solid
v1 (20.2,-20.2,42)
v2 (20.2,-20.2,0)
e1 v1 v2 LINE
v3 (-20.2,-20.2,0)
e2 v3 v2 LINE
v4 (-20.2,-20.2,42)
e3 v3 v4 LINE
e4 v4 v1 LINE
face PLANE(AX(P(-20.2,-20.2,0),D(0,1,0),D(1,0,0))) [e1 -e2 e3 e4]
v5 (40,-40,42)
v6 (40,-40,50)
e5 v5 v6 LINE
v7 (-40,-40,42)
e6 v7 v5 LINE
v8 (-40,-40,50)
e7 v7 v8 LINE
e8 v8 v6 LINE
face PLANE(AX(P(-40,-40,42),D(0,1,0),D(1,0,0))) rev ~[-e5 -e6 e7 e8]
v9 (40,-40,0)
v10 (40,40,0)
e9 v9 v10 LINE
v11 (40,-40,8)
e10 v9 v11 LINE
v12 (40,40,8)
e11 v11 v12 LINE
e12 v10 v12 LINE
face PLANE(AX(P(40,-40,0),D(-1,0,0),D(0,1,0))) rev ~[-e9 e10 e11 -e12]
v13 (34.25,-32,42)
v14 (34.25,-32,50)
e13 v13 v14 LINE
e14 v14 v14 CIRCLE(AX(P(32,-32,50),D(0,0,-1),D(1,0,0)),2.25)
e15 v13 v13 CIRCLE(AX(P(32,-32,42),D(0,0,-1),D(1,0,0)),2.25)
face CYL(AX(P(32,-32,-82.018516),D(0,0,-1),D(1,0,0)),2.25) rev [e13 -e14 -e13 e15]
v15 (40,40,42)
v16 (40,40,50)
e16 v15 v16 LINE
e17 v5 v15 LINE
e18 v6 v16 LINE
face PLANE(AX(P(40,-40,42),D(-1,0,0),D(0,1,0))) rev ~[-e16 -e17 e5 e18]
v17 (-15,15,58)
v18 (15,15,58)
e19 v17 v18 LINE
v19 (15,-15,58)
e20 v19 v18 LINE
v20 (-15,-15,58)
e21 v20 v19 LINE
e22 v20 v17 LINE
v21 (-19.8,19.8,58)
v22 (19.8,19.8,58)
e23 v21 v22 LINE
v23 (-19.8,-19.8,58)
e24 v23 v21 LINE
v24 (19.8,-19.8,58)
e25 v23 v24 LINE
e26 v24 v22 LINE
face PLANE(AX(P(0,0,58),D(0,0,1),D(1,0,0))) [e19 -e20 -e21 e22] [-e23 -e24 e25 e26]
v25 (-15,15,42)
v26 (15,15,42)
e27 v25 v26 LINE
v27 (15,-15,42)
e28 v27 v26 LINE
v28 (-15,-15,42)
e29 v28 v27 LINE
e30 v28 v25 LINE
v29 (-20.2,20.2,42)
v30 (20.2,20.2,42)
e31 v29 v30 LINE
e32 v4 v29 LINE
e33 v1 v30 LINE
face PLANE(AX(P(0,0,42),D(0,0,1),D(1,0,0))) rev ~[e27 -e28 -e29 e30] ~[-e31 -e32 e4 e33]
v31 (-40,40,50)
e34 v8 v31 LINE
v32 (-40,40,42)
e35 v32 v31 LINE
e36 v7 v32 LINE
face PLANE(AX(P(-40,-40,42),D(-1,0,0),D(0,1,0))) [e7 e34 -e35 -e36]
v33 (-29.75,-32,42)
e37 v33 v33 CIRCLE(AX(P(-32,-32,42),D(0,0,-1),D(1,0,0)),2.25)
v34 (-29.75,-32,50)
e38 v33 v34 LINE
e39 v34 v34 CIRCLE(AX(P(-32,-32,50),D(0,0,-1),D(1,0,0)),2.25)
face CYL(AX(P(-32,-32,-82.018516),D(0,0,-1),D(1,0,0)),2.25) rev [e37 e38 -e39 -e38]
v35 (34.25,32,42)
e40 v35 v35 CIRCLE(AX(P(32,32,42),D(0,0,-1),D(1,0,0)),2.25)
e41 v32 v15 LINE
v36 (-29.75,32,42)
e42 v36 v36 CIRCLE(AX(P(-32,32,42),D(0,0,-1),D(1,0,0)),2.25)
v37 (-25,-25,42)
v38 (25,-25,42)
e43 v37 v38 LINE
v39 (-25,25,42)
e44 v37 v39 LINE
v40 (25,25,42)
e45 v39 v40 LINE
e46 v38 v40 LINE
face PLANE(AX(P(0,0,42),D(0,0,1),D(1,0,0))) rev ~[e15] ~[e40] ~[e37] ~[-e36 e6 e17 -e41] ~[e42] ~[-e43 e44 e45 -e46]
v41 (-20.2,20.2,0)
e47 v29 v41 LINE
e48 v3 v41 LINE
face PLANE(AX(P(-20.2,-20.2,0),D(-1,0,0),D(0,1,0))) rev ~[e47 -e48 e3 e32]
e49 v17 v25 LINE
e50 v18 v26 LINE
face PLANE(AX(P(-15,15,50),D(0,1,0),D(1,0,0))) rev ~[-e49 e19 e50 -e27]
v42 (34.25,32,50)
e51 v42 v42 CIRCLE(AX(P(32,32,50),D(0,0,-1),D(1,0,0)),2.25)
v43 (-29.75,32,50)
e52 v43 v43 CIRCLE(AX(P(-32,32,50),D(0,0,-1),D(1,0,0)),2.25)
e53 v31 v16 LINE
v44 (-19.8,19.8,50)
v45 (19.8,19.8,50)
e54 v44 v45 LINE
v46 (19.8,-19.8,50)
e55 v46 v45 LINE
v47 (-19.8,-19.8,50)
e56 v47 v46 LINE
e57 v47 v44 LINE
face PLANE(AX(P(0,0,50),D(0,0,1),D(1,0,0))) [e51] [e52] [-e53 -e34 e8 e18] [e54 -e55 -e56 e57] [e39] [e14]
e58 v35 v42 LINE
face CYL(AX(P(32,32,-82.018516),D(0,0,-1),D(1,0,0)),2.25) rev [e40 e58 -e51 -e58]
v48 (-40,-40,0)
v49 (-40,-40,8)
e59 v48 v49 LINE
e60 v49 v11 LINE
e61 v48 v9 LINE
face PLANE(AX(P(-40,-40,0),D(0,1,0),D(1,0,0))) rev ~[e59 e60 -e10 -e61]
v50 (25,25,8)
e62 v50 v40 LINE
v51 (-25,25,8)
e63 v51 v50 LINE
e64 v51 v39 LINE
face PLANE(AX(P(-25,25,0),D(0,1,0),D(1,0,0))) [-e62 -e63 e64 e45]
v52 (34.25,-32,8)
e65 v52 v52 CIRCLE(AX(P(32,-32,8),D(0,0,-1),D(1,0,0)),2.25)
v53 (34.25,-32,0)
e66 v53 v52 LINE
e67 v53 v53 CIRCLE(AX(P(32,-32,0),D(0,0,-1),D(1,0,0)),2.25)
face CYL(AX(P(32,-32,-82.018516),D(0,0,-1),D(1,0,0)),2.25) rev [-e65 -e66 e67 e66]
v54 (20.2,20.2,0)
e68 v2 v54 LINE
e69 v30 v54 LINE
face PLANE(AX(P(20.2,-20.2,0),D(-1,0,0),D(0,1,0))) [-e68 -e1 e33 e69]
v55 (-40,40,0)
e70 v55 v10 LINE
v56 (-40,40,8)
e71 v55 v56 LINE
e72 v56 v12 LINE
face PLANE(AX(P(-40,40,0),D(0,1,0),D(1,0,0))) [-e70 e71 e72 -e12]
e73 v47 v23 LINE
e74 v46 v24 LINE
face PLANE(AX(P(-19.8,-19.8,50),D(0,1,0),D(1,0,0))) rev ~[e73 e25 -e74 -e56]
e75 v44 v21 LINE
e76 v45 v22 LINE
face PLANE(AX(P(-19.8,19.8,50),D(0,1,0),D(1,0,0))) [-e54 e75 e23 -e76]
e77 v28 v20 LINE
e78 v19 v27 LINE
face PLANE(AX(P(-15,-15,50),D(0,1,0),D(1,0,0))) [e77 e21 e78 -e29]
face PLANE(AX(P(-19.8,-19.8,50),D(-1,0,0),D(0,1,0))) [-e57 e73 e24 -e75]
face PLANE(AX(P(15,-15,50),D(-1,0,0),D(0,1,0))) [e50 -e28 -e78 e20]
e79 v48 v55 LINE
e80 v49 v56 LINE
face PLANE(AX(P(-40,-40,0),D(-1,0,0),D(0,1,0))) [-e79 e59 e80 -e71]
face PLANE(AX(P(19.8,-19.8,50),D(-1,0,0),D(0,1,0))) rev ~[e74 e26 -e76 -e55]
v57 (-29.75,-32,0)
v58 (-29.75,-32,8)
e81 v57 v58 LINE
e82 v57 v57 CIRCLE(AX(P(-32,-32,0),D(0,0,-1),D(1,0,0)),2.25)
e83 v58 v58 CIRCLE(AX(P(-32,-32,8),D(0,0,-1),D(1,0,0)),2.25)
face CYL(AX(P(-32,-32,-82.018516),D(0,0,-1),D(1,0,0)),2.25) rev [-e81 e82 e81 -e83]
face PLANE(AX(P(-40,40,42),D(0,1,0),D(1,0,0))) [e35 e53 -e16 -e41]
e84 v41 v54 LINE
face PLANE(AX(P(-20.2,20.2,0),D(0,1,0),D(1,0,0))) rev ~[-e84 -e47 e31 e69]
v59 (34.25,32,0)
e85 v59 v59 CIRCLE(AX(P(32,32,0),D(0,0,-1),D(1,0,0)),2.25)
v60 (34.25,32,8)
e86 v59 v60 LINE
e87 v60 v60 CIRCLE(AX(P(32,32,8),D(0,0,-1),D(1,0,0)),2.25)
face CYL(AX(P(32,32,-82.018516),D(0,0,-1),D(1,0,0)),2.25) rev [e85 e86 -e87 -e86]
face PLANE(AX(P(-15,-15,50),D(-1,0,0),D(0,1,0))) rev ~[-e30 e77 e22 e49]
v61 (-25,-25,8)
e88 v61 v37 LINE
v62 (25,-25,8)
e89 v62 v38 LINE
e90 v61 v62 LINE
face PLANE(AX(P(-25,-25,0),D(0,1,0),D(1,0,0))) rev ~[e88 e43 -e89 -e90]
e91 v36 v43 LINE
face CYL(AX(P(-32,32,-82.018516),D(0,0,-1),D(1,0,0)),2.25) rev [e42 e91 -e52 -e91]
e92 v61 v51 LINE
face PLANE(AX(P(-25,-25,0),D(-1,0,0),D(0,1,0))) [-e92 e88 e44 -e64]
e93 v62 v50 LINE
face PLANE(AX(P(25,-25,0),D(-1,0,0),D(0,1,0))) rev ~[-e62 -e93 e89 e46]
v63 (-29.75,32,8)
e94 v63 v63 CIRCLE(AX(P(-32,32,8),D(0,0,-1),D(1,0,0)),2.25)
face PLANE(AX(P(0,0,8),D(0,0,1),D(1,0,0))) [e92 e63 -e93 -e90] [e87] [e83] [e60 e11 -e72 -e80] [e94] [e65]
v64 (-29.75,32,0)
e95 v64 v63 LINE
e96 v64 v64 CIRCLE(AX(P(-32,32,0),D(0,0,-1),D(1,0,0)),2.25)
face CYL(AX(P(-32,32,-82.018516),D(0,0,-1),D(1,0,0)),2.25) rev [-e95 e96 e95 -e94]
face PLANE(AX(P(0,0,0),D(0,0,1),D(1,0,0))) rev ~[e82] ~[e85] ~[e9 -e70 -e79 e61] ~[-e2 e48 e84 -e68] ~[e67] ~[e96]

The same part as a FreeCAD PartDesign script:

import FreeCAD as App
import Part
import Sketcher

V = App.Vector


def add_polygon(sketch, points):
    """Adds a closed chain of lines whose ends are joined by coincident constraints."""
    first, n = sketch.GeometryCount, len(points)
    for a, b in zip(points, points[1:] + points[:1]):
        sketch.addGeometry(Part.LineSegment(App.Vector(*a, 0), App.Vector(*b, 0)), False)
    for i in range(n):
        sketch.addConstraint(Sketcher.Constraint("Coincident", first + i, 2, first + (i + 1) % n, 1))

doc = App.newDocument("Part")
body = doc.addObject("PartDesign::Body", "Body")

# Sketch on XY plane
sketch1 = body.newObject("Sketcher::SketchObject", "Sketch")
sketch1.AttachmentSupport = (doc.getObject("XY_Plane"), [""])
sketch1.MapMode = "FlatFace"
add_polygon(sketch1, [(-25, 25), (-25, -25), (25, -25), (25, 25)])  # lines 0-3
add_polygon(sketch1, [(20.2, -20.2), (-20.2, -20.2), (-20.2, 20.2), (20.2, 20.2)])  # lines 4-7
sketch1.addConstraint([
    Sketcher.Constraint("Vertical", 0),
    Sketcher.Constraint("Horizontal", 1),
    Sketcher.Constraint("Vertical", 2),
    Sketcher.Constraint("Horizontal", 3),
    Sketcher.Constraint("Horizontal", 4),
    Sketcher.Constraint("Vertical", 5),
    Sketcher.Constraint("Horizontal", 6),
    Sketcher.Constraint("Vertical", 7),
    Sketcher.Constraint("Symmetric", 0, 2, 2, 2, -1, 1),
    Sketcher.Constraint("Symmetric", 4, 2, 6, 2, -1, 1),
    Sketcher.Constraint("Equal", 3, 0),
    Sketcher.Constraint("Equal", 6, 5),
    Sketcher.Constraint("DistanceX", 1, 1, 1, 2, 50.0),
    Sketcher.Constraint("DistanceX", 4, 2, 4, 1, 40.4),
])
pad1 = body.newObject("PartDesign::Pad", "Pad")
pad1.Profile = sketch1
pad1.Length = 50

# Sketch on XY plane
sketch2 = body.newObject("Sketcher::SketchObject", "Sketch001")
sketch2.AttachmentSupport = (doc.getObject("XY_Plane"), [""])
sketch2.MapMode = "FlatFace"
add_polygon(sketch2, [(-40, 40), (-40, -40), (40, -40), (40, 40)])  # lines 0-3
add_polygon(sketch2, [(20.2, -20.2), (-20.2, -20.2), (-20.2, 20.2), (20.2, 20.2)])  # lines 4-7
sketch2.addConstraint([
    Sketcher.Constraint("Vertical", 0),
    Sketcher.Constraint("Horizontal", 1),
    Sketcher.Constraint("Vertical", 2),
    Sketcher.Constraint("Horizontal", 3),
    Sketcher.Constraint("Horizontal", 4),
    Sketcher.Constraint("Vertical", 5),
    Sketcher.Constraint("Horizontal", 6),
    Sketcher.Constraint("Vertical", 7),
    Sketcher.Constraint("Symmetric", 0, 2, 2, 2, -1, 1),
    Sketcher.Constraint("Symmetric", 4, 2, 6, 2, -1, 1),
    Sketcher.Constraint("Equal", 3, 0),
    Sketcher.Constraint("Equal", 6, 5),
    Sketcher.Constraint("DistanceX", 1, 1, 1, 2, 80.0),
    Sketcher.Constraint("DistanceX", 4, 2, 4, 1, 40.4),
])
pad2 = body.newObject("PartDesign::Pad", "Pad001")
pad2.Profile = sketch2
pad2.Length = 8

# Sketch on XY plane
sketch3 = body.newObject("Sketcher::SketchObject", "Sketch002")
sketch3.AttachmentSupport = (doc.getObject("XY_Plane"), [""])
sketch3.MapMode = "FlatFace"
sketch3.AttachmentOffset = App.Placement(V(0, 0, 42), App.Rotation())
add_polygon(sketch3, [(-40, 40), (-40, -40), (40, -40), (40, 40)])  # lines 0-3
add_polygon(sketch3, [(15, -15), (-15, -15), (-15, 15), (15, 15)])  # lines 4-7
sketch3.addConstraint([
    Sketcher.Constraint("Vertical", 0),
    Sketcher.Constraint("Horizontal", 1),
    Sketcher.Constraint("Vertical", 2),
    Sketcher.Constraint("Horizontal", 3),
    Sketcher.Constraint("Horizontal", 4),
    Sketcher.Constraint("Vertical", 5),
    Sketcher.Constraint("Horizontal", 6),
    Sketcher.Constraint("Vertical", 7),
    Sketcher.Constraint("Symmetric", 0, 2, 2, 2, -1, 1),
    Sketcher.Constraint("Symmetric", 4, 2, 6, 2, -1, 1),
    Sketcher.Constraint("Equal", 3, 0),
    Sketcher.Constraint("Equal", 6, 5),
    Sketcher.Constraint("DistanceX", 1, 1, 1, 2, 80.0),
    Sketcher.Constraint("DistanceX", 4, 2, 4, 1, 30.0),
])
pad3 = body.newObject("PartDesign::Pad", "Pad002")
pad3.Profile = sketch3
pad3.Length = 8

# Sketch on XY plane
sketch4 = body.newObject("Sketcher::SketchObject", "Sketch003")
sketch4.AttachmentSupport = (doc.getObject("XY_Plane"), [""])
sketch4.MapMode = "FlatFace"
sketch4.AttachmentOffset = App.Placement(V(0, 0, 50), App.Rotation())
add_polygon(sketch4, [(-19.8, 19.8), (-19.8, -19.8), (19.8, -19.8), (19.8, 19.8)])  # lines 0-3
add_polygon(sketch4, [(15, -15), (-15, -15), (-15, 15), (15, 15)])  # lines 4-7
sketch4.addConstraint([
    Sketcher.Constraint("Vertical", 0),
    Sketcher.Constraint("Horizontal", 1),
    Sketcher.Constraint("Vertical", 2),
    Sketcher.Constraint("Horizontal", 3),
    Sketcher.Constraint("Horizontal", 4),
    Sketcher.Constraint("Vertical", 5),
    Sketcher.Constraint("Horizontal", 6),
    Sketcher.Constraint("Vertical", 7),
    Sketcher.Constraint("Symmetric", 0, 2, 2, 2, -1, 1),
    Sketcher.Constraint("Symmetric", 4, 2, 6, 2, -1, 1),
    Sketcher.Constraint("Equal", 3, 0),
    Sketcher.Constraint("Equal", 6, 5),
    Sketcher.Constraint("DistanceX", 4, 2, 4, 1, 30.0),
    Sketcher.Constraint("DistanceX", 1, 1, 1, 2, 39.6),
])
pad4 = body.newObject("PartDesign::Pad", "Pad003")
pad4.Profile = sketch4
pad4.Length = 8

# Sketch on XY plane
sketch5 = body.newObject("Sketcher::SketchObject", "Sketch004")
sketch5.AttachmentSupport = (doc.getObject("XY_Plane"), [""])
sketch5.MapMode = "FlatFace"
sketch5.addGeometry([
    Part.Circle(V(-32, -32, 0), V(0, 0, 1), 2.25),
    Part.Circle(V(-32, 32, 0), V(0, 0, 1), 2.25),
    Part.Circle(V(32, -32, 0), V(0, 0, 1), 2.25),
    Part.Circle(V(32, 32, 0), V(0, 0, 1), 2.25),
], False)
sketch5.addConstraint([
    Sketcher.Constraint("Equal", 0, 1),
    Sketcher.Constraint("Equal", 1, 2),
    Sketcher.Constraint("Equal", 2, 3),
    Sketcher.Constraint("Symmetric", 1, 3, 2, 3, -1, 1),
    Sketcher.Constraint("Symmetric", 0, 3, 3, 3, -1, 1),
    Sketcher.Constraint("Symmetric", 0, 3, 2, 3, -2),
    Sketcher.Constraint("Diameter", 0, 4.5),
    Sketcher.Constraint("DistanceX", 0, 3, -1, 1, 32.0),
    Sketcher.Constraint("DistanceY", 0, 3, -1, 1, 32.0),
])
pocket1 = body.newObject("PartDesign::Pocket", "Pocket")
pocket1.Profile = sketch5
pocket1.Type = "ThroughAll"
pocket1.Midplane = True

doc.recompute()
